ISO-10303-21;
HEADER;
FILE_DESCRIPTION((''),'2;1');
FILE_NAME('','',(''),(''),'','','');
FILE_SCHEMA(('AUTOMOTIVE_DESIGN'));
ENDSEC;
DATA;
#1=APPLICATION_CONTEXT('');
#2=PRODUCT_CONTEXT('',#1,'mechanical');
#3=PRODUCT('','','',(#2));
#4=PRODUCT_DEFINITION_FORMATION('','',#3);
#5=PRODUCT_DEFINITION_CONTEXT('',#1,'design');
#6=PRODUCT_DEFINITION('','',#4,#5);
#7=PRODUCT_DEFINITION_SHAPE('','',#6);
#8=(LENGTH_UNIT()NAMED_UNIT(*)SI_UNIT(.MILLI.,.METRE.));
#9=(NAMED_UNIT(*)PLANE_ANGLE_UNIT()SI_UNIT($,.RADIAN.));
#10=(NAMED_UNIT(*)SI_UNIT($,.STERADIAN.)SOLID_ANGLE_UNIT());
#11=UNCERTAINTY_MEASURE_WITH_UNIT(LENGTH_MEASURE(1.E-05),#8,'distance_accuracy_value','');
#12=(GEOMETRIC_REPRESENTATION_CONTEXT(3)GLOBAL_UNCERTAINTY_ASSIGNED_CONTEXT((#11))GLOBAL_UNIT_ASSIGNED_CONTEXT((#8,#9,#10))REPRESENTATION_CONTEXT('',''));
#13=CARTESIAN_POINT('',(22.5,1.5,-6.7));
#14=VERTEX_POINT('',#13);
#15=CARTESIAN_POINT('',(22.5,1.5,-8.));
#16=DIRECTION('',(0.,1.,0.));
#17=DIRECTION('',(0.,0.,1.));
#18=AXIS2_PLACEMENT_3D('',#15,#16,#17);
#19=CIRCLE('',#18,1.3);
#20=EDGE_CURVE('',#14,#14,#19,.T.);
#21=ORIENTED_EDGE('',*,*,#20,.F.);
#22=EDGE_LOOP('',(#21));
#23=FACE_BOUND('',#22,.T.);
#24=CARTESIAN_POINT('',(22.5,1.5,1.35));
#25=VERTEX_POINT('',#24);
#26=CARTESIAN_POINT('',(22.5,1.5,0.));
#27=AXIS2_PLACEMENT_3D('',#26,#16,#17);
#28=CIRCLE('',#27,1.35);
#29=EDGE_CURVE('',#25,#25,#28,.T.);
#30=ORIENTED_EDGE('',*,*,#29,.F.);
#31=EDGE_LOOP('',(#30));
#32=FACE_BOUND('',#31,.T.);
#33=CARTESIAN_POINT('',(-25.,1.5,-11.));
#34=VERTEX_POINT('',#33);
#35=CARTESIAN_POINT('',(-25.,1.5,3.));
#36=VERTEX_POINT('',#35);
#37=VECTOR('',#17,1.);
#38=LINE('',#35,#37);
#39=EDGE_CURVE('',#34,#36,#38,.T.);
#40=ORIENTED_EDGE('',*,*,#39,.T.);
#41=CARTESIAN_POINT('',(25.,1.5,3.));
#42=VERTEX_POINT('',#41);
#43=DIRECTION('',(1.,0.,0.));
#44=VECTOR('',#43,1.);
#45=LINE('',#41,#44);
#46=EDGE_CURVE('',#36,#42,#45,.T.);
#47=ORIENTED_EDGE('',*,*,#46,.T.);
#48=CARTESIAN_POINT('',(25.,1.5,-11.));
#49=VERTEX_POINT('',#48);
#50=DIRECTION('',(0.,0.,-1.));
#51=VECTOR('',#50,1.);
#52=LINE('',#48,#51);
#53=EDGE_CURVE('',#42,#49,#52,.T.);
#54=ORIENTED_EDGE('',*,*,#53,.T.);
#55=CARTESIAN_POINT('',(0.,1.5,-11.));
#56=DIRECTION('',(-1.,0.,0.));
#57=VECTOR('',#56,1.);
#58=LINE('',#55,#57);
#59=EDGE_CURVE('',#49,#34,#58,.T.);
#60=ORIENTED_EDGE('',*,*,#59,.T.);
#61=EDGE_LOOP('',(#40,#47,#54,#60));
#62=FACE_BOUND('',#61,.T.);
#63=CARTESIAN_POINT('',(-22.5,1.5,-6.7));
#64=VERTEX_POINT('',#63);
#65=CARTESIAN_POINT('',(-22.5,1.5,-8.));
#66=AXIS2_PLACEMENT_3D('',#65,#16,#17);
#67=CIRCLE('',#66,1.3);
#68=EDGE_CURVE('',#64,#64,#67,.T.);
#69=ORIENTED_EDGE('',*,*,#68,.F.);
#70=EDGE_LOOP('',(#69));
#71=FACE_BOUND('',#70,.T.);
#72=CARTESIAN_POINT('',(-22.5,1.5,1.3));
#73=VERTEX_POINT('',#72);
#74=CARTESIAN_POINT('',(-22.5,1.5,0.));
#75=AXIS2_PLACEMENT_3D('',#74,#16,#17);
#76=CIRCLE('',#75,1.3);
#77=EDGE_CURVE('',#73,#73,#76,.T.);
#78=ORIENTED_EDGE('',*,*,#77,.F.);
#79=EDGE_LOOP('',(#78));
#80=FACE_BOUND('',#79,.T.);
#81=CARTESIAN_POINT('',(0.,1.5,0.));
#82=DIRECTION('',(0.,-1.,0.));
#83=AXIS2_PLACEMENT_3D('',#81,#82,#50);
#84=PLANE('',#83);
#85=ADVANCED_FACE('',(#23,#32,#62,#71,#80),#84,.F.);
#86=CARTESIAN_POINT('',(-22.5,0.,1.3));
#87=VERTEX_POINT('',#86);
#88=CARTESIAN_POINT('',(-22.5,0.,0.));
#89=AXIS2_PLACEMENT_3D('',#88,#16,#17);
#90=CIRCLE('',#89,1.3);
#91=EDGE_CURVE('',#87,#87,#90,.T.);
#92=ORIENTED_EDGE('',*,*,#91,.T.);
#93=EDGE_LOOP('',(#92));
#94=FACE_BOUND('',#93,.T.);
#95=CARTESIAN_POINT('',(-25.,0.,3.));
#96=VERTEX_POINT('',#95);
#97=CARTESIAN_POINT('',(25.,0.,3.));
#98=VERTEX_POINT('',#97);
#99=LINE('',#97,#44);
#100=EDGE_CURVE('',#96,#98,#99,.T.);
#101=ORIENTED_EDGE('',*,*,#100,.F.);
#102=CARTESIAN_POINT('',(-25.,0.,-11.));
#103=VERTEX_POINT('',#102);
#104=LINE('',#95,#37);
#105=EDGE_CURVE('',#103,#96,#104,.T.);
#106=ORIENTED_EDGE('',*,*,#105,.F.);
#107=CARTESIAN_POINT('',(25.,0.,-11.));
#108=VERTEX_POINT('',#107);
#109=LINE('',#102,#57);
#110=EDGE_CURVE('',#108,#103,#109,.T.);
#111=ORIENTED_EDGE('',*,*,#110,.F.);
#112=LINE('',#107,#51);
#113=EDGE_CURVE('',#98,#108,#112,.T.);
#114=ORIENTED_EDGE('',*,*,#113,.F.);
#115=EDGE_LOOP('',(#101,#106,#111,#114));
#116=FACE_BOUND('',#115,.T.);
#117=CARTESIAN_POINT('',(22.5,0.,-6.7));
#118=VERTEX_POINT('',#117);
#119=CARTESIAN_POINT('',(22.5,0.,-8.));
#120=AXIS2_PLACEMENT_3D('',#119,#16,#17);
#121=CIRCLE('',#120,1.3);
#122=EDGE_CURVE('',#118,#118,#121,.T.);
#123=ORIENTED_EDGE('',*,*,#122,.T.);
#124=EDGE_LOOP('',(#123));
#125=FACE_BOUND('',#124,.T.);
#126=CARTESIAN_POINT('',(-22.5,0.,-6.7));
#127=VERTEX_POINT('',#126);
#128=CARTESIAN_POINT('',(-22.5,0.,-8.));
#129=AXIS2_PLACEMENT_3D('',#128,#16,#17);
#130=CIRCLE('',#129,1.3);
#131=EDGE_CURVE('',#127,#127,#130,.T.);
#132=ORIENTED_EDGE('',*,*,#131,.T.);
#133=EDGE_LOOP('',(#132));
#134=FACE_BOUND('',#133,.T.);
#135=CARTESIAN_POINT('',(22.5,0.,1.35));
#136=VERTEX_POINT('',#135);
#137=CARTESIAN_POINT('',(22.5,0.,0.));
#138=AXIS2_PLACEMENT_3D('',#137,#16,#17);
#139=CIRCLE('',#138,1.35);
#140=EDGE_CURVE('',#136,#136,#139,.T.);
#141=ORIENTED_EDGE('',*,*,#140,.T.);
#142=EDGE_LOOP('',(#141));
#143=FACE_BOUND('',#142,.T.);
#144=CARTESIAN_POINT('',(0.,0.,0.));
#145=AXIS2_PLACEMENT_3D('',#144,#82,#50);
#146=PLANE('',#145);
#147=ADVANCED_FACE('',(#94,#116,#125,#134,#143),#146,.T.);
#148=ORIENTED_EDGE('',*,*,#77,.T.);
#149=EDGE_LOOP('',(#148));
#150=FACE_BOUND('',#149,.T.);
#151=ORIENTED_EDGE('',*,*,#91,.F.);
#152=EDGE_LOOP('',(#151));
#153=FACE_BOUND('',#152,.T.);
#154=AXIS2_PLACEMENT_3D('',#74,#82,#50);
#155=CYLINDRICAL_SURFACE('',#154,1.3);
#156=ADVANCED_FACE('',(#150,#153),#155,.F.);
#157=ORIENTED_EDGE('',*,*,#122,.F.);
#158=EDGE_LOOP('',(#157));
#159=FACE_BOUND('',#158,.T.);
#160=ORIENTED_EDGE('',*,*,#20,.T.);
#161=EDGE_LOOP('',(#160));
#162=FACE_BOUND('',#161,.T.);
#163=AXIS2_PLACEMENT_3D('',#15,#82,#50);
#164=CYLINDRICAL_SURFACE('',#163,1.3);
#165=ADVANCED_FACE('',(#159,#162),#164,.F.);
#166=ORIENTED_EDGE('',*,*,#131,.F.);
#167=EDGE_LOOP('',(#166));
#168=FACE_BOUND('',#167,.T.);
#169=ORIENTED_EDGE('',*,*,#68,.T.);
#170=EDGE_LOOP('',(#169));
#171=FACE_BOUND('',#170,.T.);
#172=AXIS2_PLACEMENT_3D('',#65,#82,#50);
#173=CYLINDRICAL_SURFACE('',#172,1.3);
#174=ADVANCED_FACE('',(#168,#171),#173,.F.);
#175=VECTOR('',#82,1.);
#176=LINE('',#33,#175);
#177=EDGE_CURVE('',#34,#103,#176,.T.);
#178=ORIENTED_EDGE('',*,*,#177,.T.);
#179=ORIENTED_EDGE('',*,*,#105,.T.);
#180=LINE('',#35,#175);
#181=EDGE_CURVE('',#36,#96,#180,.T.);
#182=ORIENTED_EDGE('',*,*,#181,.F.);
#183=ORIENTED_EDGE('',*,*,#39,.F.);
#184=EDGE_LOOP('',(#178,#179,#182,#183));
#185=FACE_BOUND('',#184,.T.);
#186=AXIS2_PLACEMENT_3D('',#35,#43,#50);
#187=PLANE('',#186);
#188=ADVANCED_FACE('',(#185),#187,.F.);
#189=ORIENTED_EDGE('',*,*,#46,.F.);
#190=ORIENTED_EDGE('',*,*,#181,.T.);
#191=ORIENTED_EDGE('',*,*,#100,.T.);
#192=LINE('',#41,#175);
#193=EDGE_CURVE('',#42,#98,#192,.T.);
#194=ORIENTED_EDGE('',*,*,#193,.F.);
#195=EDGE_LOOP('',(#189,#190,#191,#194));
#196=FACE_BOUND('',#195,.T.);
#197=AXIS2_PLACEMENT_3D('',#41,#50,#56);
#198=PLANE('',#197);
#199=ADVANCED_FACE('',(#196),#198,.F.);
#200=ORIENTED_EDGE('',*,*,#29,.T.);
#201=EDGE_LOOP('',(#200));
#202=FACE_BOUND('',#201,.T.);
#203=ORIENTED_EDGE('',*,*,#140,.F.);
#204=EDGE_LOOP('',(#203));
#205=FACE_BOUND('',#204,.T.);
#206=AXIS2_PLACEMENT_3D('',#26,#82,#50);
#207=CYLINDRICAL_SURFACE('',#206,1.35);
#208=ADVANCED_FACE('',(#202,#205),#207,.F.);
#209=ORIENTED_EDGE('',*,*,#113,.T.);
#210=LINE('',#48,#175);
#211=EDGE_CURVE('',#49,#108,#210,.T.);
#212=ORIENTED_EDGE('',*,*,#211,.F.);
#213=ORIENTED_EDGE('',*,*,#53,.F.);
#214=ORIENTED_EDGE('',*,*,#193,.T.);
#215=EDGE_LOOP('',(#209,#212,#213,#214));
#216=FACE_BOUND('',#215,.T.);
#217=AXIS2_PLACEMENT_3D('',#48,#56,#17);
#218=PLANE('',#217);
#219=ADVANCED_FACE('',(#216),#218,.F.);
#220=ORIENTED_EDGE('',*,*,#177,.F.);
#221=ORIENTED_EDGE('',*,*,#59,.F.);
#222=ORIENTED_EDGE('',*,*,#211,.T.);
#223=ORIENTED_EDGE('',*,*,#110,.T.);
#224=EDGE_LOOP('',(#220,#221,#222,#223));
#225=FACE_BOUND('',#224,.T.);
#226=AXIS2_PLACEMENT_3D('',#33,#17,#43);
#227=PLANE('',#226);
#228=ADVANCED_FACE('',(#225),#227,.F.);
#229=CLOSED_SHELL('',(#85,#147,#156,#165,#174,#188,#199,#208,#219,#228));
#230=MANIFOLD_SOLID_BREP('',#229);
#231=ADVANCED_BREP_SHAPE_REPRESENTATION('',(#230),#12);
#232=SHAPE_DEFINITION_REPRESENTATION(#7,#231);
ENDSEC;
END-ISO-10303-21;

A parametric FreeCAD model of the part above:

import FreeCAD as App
import Part
import Sketcher

V = App.Vector
Q = App.Units.Quantity

doc = App.newDocument("Part")
body = doc.addObject("PartDesign::Body", "Body")

# Sketch on XZ plane
sketch1 = body.newObject("Sketcher::SketchObject", "Sketch")
sketch1.AttachmentSupport = (doc.getObject("XZ_Plane"), [""])
sketch1.MapMode = "FlatFace"
sketch1.addGeometry([
    Part.LineSegment(V(25, -11, 0), V(-25, -11, 0)),  # 0
    Part.LineSegment(V(-25, -11, 0), V(-25, 3, 0)),  # 1
    Part.LineSegment(V(-25, 3, 0), V(25, 3, 0)),  # 2
    Part.LineSegment(V(25, 3, 0), V(25, -11, 0)),  # 3
    Part.Circle(V(22.5, 0, 0), V(0, 0, 1), 1.35),  # 4
    Part.Circle(V(-22.5, 0, 0), V(0, 0, 1), 1.3),  # 5
    Part.Circle(V(22.5, -8, 0), V(0, 0, 1), 1.3),  # 6
    Part.Circle(V(-22.5, -8, 0), V(0, 0, 1), 1.3),  # 7
], False)
sketch1.addConstraint([
    Sketcher.Constraint("Coincident", 0, 2, 1, 1),
    Sketcher.Constraint("Coincident", 1, 2, 2, 1),
    Sketcher.Constraint("Coincident", 2, 2, 3, 1),
    Sketcher.Constraint("Coincident", 3, 2, 0, 1),
    Sketcher.Constraint("Horizontal", 0),
    Sketcher.Constraint("Vertical", 1),
    Sketcher.Constraint("Horizontal", 2),
    Sketcher.Constraint("Vertical", 3),
    Sketcher.Constraint("Equal", 5, 6),
    Sketcher.Constraint("Equal", 6, 7),
    Sketcher.Constraint("Symmetric", 4, 3, 5, 3, -1, 1),
    Sketcher.Constraint("Symmetric", 6, 3, 7, 3, -2),
    Sketcher.Constraint("PointOnObject", 4, 3, -1),
    Sketcher.Constraint("Vertical", 4, 3, 6, 3),
    Sketcher.Constraint("Diameter", 4, Q("2.7 mm")),
    Sketcher.Constraint("Diameter", 5, Q("2.6 mm")),
    Sketcher.Constraint("DistanceX", 0, 2, 0, 1, Q("50 mm")),
    Sketcher.Constraint("DistanceY", 1, 1, 1, 2, Q("14 mm")),
    Sketcher.Constraint("DistanceY", 6, 3, -1, 1, Q("8 mm")),
    Sketcher.Constraint("DistanceX", 0, 2, -1, 1, Q("25 mm")),
    Sketcher.Constraint("DistanceY", 0, 2, -1, 1, Q("11 mm")),
    Sketcher.Constraint("DistanceX", 5, 3, 4, 3, Q("45 mm")),
])
pad1 = body.newObject("PartDesign::Pad", "Pad")
pad1.Profile = sketch1
pad1.Length = 1.5
pad1.Reversed = True

doc.recompute()
